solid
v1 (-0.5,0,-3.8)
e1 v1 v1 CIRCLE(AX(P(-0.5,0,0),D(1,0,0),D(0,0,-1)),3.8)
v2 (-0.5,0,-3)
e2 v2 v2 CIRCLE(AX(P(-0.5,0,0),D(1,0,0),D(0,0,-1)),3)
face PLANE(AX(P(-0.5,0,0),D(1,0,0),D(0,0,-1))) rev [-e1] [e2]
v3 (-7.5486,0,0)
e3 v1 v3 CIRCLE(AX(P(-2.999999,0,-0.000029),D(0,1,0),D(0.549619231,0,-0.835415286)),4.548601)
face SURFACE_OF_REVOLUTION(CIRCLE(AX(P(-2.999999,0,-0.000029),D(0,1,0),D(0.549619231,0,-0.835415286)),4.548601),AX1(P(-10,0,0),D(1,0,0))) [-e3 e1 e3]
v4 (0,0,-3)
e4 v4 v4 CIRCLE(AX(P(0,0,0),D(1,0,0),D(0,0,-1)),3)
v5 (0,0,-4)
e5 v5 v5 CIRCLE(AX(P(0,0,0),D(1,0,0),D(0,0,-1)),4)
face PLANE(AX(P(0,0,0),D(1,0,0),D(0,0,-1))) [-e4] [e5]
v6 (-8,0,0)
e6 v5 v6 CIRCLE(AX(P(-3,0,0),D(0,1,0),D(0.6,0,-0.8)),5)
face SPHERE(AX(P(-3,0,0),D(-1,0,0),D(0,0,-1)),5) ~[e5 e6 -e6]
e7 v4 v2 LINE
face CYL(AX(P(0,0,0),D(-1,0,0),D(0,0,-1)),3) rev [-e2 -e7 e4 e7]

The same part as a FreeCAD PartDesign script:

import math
import FreeCAD as App
import Part
import Sketcher
Q = App.Units.Quantity

doc = App.newDocument("Part")
params = doc.addObject("Spreadsheet::Sheet", "Params")
for row, (alias, value) in enumerate([
    ("sketch1_radius", "5 mm"),
    ("sketch1_height", "1 mm"),
    ("sketch1_width", "0.5 mm"),
    ("sketch1_height2", "0.8 mm"),
    ("revolution_angle", "360 deg"),
], start=1):
    params.set(f"A{row}", alias)
    params.set(f"B{row}", "=" + value)
    params.setAlias(f"B{row}", alias)

body = doc.addObject("PartDesign::Body", "Body")

sketch1 = body.newObject("Sketcher::SketchObject", "Sketch")
sketch1.AttachmentSupport = (doc.getObject("XZ_Plane"), [""])
sketch1.MapMode = "FlatFace"
sketch1.addGeometry(Part.LineSegment(App.Vector(0, -3, 0), App.Vector(0, -4, 0)), False)
sketch1.addGeometry(Part.ArcOfCircle(Part.Circle(App.Vector(-3, 0, 0), App.Vector(0, 0, 1), 5), math.radians(180), math.radians(307)), False)
sketch1.addGeometry(Part.LineSegment(App.Vector(-8, 0, 0), App.Vector(-7.55, 0, 0)), False)
sketch1.addGeometry(Part.ArcOfCircle(Part.Circle(App.Vector(-3, 0, 0), App.Vector(0, 0, 1), 4.55), math.radians(180), math.radians(303)), False)
sketch1.addGeometry(Part.LineSegment(App.Vector(-0.5, -3.8, 0), App.Vector(-0.5, -3, 0)), False)
sketch1.addGeometry(Part.LineSegment(App.Vector(-0.5, -3, 0), App.Vector(0, -3, 0)), False)
sketch1.addConstraint(Sketcher.Constraint("Coincident", 0, 2, 1, 2))
sketch1.addConstraint(Sketcher.Constraint("Coincident", 1, 1, 2, 1))
sketch1.addConstraint(Sketcher.Constraint("Coincident", 2, 2, 3, 1))
sketch1.addConstraint(Sketcher.Constraint("Coincident", 3, 2, 4, 1))
sketch1.addConstraint(Sketcher.Constraint("Coincident", 4, 2, 5, 1))
sketch1.addConstraint(Sketcher.Constraint("Coincident", 5, 2, 0, 1))
sketch1.addConstraint(Sketcher.Constraint("Vertical", 0))
sketch1.addConstraint(Sketcher.Constraint("Horizontal", 2))
sketch1.addConstraint(Sketcher.Constraint("Vertical", 4))
sketch1.addConstraint(Sketcher.Constraint("Horizontal", 5))
sketch1.addConstraint(Sketcher.Constraint("Coincident", 3, 3, 1, 3))
sketch1.addConstraint(Sketcher.Constraint("PointOnObject", 1, 3, -1))
sketch1.addConstraint(Sketcher.Constraint("PointOnObject", 0, 2, -2))
sketch1.addConstraint(Sketcher.Constraint("PointOnObject", 1, 1, -1))
sketch1.addConstraint(Sketcher.Constraint("Radius", 1, Q("5 mm")))
sketch1.addConstraint(Sketcher.Constraint("DistanceY", 0, 2, 0, 1, Q("1 mm")))
sketch1.addConstraint(Sketcher.Constraint("DistanceX", 5, 1, 5, 2, Q("0.5 mm")))
sketch1.addConstraint(Sketcher.Constraint("DistanceY", 4, 1, 4, 2, Q("0.8 mm")))
sketch1.addConstraint(Sketcher.Constraint("DistanceY", 0, 2, -1, 1, Q("4 mm")))
sketch1.setExpression("Constraints[14]", "Params.sketch1_radius")
sketch1.setExpression("Constraints[15]", "Params.sketch1_height")
sketch1.setExpression("Constraints[16]", "Params.sketch1_width")
sketch1.setExpression("Constraints[17]", "Params.sketch1_height2")
revolution = body.newObject("PartDesign::Revolution", "Revolution")
revolution.Profile = sketch1
revolution.ReferenceAxis = (sketch1, ["H_Axis"])
revolution.setExpression("Angle", "Params.revolution_angle")

doc.recompute()
